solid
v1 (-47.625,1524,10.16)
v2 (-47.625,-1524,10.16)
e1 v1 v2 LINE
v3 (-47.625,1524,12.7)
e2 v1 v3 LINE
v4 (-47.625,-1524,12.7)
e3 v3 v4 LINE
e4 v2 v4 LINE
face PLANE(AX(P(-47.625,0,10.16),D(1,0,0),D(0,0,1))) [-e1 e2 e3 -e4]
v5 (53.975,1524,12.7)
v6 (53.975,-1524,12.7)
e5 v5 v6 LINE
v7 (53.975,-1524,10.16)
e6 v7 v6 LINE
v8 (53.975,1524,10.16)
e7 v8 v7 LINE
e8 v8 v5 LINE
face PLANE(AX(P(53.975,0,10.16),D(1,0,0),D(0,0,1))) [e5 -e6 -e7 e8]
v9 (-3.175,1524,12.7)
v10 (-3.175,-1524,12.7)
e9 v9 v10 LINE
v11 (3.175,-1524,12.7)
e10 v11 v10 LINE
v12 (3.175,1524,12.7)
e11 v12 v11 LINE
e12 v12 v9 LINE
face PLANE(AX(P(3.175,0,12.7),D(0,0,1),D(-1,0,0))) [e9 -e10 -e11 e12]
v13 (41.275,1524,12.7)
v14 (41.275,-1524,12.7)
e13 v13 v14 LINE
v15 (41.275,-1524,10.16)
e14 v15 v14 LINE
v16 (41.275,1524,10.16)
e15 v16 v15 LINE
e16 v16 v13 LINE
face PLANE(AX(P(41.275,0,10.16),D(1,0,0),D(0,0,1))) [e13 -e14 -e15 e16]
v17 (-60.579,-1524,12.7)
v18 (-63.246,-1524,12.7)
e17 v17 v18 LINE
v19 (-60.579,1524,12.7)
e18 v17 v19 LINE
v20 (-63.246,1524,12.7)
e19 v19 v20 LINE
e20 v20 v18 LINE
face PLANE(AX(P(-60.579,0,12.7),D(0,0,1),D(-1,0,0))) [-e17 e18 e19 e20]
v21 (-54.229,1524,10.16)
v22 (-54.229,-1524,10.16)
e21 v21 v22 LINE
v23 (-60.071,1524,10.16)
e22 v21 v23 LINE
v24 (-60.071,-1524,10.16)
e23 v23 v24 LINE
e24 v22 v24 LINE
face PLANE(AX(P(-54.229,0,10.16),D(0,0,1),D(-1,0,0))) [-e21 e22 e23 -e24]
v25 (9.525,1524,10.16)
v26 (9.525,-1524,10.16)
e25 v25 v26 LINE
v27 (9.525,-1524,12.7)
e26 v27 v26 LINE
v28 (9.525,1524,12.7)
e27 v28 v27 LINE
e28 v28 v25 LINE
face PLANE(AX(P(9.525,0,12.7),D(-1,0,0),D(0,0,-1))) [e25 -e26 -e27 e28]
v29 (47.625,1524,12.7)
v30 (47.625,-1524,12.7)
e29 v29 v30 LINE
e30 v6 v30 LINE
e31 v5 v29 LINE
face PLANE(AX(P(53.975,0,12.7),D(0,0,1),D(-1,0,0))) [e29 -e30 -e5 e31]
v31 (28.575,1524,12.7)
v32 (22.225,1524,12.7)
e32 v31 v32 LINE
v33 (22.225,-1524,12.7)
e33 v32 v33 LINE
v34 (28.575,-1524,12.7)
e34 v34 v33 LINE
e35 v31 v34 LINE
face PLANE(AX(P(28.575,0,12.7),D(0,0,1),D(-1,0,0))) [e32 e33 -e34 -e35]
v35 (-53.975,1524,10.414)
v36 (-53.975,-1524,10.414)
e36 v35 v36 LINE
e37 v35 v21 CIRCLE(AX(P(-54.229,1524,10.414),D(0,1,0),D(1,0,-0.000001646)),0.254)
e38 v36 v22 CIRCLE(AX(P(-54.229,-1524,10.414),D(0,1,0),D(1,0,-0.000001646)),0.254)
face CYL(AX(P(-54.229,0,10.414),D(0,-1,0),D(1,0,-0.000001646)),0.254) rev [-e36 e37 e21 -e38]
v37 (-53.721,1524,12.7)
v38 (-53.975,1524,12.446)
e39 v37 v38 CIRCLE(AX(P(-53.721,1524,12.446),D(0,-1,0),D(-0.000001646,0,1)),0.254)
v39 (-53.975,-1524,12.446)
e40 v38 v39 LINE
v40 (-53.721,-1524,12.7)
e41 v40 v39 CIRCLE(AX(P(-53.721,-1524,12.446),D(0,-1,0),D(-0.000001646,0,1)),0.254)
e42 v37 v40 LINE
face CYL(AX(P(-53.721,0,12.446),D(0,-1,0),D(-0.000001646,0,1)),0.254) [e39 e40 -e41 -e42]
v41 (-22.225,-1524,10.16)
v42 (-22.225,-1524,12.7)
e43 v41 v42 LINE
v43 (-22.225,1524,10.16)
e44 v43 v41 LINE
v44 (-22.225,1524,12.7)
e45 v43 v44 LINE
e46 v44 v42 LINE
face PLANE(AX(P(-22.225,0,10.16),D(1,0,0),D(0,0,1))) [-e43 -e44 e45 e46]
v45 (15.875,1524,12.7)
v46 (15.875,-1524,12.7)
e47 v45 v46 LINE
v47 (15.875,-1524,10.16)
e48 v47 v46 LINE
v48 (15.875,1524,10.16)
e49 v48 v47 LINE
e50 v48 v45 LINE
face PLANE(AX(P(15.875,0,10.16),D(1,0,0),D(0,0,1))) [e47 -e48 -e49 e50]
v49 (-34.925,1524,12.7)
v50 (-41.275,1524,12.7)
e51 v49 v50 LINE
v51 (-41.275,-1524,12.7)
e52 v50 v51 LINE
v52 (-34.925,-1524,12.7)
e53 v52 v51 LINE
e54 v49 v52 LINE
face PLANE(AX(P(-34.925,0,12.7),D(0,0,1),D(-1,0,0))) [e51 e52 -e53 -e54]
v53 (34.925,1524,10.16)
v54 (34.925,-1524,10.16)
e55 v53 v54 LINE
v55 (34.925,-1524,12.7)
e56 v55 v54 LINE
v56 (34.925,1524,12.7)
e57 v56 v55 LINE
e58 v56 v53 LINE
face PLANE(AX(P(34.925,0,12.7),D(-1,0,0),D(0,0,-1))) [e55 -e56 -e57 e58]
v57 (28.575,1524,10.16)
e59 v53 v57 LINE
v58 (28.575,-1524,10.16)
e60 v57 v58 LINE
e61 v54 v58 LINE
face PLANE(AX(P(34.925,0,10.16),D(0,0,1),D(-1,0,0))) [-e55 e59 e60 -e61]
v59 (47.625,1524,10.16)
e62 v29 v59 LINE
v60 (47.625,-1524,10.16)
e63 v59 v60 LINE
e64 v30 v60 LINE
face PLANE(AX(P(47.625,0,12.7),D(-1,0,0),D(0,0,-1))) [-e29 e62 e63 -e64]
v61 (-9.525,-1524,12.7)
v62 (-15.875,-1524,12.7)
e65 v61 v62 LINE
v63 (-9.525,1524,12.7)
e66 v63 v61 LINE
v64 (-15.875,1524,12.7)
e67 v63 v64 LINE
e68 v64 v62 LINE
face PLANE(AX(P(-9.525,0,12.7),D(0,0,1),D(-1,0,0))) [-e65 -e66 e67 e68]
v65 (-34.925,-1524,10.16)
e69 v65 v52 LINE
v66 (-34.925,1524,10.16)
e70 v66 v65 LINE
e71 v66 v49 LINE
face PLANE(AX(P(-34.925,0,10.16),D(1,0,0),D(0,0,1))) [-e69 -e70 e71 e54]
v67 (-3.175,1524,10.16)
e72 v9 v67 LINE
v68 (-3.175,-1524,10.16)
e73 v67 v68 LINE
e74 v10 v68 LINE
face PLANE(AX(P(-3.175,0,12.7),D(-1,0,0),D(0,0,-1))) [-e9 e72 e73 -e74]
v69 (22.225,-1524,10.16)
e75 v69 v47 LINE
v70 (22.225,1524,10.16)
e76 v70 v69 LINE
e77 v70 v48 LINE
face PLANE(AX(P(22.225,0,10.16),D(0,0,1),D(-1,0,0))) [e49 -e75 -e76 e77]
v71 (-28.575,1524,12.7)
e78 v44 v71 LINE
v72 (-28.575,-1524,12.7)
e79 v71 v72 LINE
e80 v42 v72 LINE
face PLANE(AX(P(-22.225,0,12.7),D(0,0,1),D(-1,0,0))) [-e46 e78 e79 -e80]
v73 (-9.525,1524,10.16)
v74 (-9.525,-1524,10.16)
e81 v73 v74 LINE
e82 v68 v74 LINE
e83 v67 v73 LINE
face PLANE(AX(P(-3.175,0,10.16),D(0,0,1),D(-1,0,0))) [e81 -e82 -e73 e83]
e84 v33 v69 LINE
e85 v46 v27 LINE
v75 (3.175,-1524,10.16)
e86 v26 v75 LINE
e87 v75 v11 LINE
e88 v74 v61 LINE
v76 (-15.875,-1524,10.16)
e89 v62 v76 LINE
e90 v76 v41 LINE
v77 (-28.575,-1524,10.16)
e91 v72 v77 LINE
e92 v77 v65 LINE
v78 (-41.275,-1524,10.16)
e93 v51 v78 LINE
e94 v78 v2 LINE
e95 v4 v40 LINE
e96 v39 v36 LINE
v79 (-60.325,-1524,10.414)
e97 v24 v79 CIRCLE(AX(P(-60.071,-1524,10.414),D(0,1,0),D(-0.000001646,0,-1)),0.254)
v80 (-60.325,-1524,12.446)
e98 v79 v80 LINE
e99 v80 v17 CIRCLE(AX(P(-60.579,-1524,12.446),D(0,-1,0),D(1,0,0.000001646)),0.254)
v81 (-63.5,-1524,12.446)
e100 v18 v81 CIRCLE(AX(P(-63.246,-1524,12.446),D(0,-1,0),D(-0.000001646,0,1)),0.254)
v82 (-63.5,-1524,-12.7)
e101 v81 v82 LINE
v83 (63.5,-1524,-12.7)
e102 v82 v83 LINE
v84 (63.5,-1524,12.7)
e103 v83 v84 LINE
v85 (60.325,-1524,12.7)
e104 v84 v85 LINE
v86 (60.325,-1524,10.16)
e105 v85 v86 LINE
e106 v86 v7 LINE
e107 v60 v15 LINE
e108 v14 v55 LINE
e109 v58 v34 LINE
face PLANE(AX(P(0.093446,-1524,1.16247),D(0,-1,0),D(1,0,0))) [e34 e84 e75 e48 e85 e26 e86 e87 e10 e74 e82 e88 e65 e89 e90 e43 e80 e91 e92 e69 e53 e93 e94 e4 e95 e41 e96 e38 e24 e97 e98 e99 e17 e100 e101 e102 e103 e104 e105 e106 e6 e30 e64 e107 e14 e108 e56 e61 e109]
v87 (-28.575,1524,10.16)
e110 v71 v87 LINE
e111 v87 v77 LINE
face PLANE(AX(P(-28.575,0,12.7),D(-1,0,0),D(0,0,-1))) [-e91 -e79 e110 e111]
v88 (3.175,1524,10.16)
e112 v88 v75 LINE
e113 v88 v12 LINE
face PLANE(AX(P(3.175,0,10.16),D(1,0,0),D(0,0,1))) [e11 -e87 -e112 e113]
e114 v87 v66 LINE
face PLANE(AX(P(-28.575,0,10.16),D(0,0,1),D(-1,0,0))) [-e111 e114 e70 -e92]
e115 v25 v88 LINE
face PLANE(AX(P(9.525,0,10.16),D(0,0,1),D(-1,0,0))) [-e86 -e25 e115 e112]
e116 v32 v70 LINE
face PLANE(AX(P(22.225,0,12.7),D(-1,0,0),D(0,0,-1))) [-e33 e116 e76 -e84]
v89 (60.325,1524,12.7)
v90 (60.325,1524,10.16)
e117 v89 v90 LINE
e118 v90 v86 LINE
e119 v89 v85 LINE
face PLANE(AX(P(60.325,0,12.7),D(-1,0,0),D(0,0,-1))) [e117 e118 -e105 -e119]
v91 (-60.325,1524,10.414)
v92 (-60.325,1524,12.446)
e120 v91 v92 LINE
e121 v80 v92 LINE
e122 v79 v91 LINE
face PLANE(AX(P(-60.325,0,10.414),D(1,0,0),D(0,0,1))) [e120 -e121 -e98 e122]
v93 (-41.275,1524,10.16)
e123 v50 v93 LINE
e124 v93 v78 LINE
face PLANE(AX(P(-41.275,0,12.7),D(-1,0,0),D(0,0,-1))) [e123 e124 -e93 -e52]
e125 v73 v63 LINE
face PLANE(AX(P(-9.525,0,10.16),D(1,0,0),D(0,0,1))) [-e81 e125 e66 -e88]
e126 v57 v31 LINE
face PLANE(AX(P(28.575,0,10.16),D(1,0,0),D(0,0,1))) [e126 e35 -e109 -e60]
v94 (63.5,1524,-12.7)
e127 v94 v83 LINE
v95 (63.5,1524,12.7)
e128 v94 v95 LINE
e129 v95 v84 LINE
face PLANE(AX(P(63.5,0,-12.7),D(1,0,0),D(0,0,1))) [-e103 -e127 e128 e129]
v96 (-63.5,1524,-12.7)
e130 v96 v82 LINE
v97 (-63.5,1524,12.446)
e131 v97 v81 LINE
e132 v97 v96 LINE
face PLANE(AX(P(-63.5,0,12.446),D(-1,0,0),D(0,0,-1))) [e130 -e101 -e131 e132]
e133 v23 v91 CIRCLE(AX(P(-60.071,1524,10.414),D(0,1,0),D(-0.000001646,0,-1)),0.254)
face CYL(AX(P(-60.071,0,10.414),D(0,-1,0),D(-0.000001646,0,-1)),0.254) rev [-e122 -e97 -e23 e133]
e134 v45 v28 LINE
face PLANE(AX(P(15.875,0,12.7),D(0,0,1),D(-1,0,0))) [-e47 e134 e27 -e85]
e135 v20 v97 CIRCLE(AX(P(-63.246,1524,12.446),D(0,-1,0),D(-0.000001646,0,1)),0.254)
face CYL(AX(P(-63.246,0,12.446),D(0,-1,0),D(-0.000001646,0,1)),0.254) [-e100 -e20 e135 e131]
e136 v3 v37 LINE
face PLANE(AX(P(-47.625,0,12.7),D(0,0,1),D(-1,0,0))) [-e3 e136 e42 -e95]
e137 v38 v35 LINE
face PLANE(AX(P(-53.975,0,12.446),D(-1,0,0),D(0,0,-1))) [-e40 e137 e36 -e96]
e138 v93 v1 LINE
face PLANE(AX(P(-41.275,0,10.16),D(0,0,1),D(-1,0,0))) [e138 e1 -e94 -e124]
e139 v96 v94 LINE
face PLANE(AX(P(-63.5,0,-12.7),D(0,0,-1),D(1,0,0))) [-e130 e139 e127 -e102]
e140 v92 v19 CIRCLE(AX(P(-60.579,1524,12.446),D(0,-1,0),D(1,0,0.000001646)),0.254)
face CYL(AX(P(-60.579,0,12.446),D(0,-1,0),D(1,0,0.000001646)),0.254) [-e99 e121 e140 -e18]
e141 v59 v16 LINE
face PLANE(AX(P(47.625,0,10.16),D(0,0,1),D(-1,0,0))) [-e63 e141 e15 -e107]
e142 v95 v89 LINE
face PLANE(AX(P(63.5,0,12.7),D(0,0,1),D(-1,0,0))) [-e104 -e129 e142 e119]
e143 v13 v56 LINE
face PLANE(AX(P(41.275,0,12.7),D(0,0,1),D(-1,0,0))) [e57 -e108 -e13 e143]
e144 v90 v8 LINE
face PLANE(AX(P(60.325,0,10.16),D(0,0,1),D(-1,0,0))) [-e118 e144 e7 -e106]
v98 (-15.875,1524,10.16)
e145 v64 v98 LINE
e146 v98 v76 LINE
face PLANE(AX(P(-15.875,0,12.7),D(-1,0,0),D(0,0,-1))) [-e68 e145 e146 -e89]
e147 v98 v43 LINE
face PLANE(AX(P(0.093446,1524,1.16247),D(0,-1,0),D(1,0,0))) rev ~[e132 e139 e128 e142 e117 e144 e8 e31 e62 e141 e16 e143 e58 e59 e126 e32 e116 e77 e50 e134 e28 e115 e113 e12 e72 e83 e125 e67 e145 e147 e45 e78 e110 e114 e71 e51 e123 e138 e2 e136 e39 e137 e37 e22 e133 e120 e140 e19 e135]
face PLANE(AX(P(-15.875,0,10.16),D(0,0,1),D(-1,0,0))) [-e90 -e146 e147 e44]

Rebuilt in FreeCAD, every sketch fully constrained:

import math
import FreeCAD as App
import Part
import Sketcher

V = App.Vector
Q = App.Units.Quantity

doc = App.newDocument("Part")
body = doc.addObject("PartDesign::Body", "Body")

sketch1 = doc.addObject("Sketcher::SketchObject", "Sketch")
body.addObject(sketch1)
sketch1.AttachmentSupport = (doc.XZ_Plane, [""])
sketch1.MapMode = "FlatFace"
sketch1.addGeometry([
    Part.LineSegment(V(-60.58, 12.7, 0), V(-63.25, 12.7, 0)),
    Part.ArcOfCircle(Part.Circle(V(-63.25, 12.45, 0), V(0, 0, 1), 0.25), math.radians(90), math.radians(180)),
    Part.LineSegment(V(-63.5, 12.45, 0), V(-63.5, -12.7, 0)),
    Part.LineSegment(V(-63.5, -12.7, 0), V(63.5, -12.7, 0)),
    Part.LineSegment(V(63.5, -12.7, 0), V(63.5, 12.7, 0)),
    Part.LineSegment(V(63.5, 12.7, 0), V(60.33, 12.7, 0)),
    Part.LineSegment(V(60.33, 12.7, 0), V(60.33, 10.16, 0)),
    Part.LineSegment(V(60.33, 10.16, 0), V(53.98, 10.16, 0)),
    Part.LineSegment(V(53.98, 10.16, 0), V(53.98, 12.7, 0)),
    Part.LineSegment(V(53.98, 12.7, 0), V(47.62, 12.7, 0)),
    Part.LineSegment(V(47.62, 12.7, 0), V(47.62, 10.16, 0)),
    Part.LineSegment(V(47.62, 10.16, 0), V(41.27, 10.16, 0)),
    Part.LineSegment(V(41.27, 10.16, 0), V(41.27, 12.7, 0)),
    Part.LineSegment(V(41.27, 12.7, 0), V(34.92, 12.7, 0)),
    Part.LineSegment(V(34.92, 12.7, 0), V(34.92, 10.16, 0)),
    Part.LineSegment(V(34.92, 10.16, 0), V(28.57, 10.16, 0)),
    Part.LineSegment(V(28.57, 10.16, 0), V(28.57, 12.7, 0)),
    Part.LineSegment(V(28.57, 12.7, 0), V(22.23, 12.7, 0)),
    Part.LineSegment(V(22.23, 12.7, 0), V(22.23, 10.16, 0)),
    Part.LineSegment(V(22.23, 10.16, 0), V(15.88, 10.16, 0)),
    Part.LineSegment(V(15.88, 10.16, 0), V(15.88, 12.7, 0)),
    Part.LineSegment(V(15.88, 12.7, 0), V(9.53, 12.7, 0)),
    Part.LineSegment(V(9.53, 12.7, 0), V(9.53, 10.16, 0)),
    Part.LineSegment(V(9.53, 10.16, 0), V(3.17, 10.16, 0)),
    Part.LineSegment(V(3.17, 10.16, 0), V(3.17, 12.7, 0)),
    Part.LineSegment(V(3.17, 12.7, 0), V(-3.17, 12.7, 0)),
    Part.LineSegment(V(-3.17, 12.7, 0), V(-3.17, 10.16, 0)),
    Part.LineSegment(V(-3.17, 10.16, 0), V(-9.53, 10.16, 0)),
    Part.LineSegment(V(-9.53, 10.16, 0), V(-9.53, 12.7, 0)),
    Part.LineSegment(V(-9.53, 12.7, 0), V(-15.88, 12.7, 0)),
    Part.LineSegment(V(-15.88, 12.7, 0), V(-15.88, 10.16, 0)),
    Part.LineSegment(V(-15.88, 10.16, 0), V(-22.23, 10.16, 0)),
    Part.LineSegment(V(-22.23, 10.16, 0), V(-22.23, 12.7, 0)),
    Part.LineSegment(V(-22.23, 12.7, 0), V(-28.57, 12.7, 0)),
    Part.LineSegment(V(-28.57, 12.7, 0), V(-28.57, 10.16, 0)),
    Part.LineSegment(V(-28.57, 10.16, 0), V(-34.92, 10.16, 0)),
    Part.LineSegment(V(-34.92, 10.16, 0), V(-34.92, 12.7, 0)),
    Part.LineSegment(V(-34.92, 12.7, 0), V(-41.27, 12.7, 0)),
    Part.LineSegment(V(-41.27, 12.7, 0), V(-41.27, 10.16, 0)),
    Part.LineSegment(V(-41.27, 10.16, 0), V(-47.62, 10.16, 0)),
    Part.LineSegment(V(-47.62, 10.16, 0), V(-47.62, 12.7, 0)),
    Part.LineSegment(V(-47.62, 12.7, 0), V(-53.72, 12.7, 0)),
    Part.ArcOfCircle(Part.Circle(V(-53.72, 12.45, 0), V(0, 0, 1), 0.25), math.radians(90), math.radians(180)),
    Part.LineSegment(V(-53.98, 12.45, 0), V(-53.98, 10.41, 0)),
    Part.ArcOfCircle(Part.Circle(V(-54.23, 10.41, 0), V(0, 0, 1), 0.25), math.radians(-90), math.radians(0)),
    Part.LineSegment(V(-54.23, 10.16, 0), V(-60.07, 10.16, 0)),
    Part.ArcOfCircle(Part.Circle(V(-60.07, 10.41, 0), V(0, 0, 1), 0.25), math.radians(-180), math.radians(-90)),
    Part.LineSegment(V(-60.33, 10.41, 0), V(-60.33, 12.45, 0)),
    Part.ArcOfCircle(Part.Circle(V(-60.58, 12.45, 0), V(0, 0, 1), 0.25), math.radians(0), math.radians(90)),
], False)
sketch1.addConstraint([
    Sketcher.Constraint("Tangent", 0, 2, 1, 1),
    Sketcher.Constraint("Tangent", 1, 2, 2, 1),
    Sketcher.Constraint("Coincident", 2, 2, 3, 1),
    Sketcher.Constraint("Coincident", 3, 2, 4, 1),
    Sketcher.Constraint("Coincident", 4, 2, 5, 1),
    Sketcher.Constraint("Coincident", 5, 2, 6, 1),
    Sketcher.Constraint("Coincident", 6, 2, 7, 1),
    Sketcher.Constraint("Coincident", 7, 2, 8, 1),
    Sketcher.Constraint("Coincident", 8, 2, 9, 1),
    Sketcher.Constraint("Coincident", 9, 2, 10, 1),
    Sketcher.Constraint("Coincident", 10, 2, 11, 1),
    Sketcher.Constraint("Coincident", 11, 2, 12, 1),
    Sketcher.Constraint("Coincident", 12, 2, 13, 1),
    Sketcher.Constraint("Coincident", 13, 2, 14, 1),
    Sketcher.Constraint("Coincident", 14, 2, 15, 1),
    Sketcher.Constraint("Coincident", 15, 2, 16, 1),
    Sketcher.Constraint("Coincident", 16, 2, 17, 1),
    Sketcher.Constraint("Coincident", 17, 2, 18, 1),
    Sketcher.Constraint("Coincident", 18, 2, 19, 1),
    Sketcher.Constraint("Coincident", 19, 2, 20, 1),
    Sketcher.Constraint("Coincident", 20, 2, 21, 1),
    Sketcher.Constraint("Coincident", 21, 2, 22, 1),
    Sketcher.Constraint("Coincident", 22, 2, 23, 1),
    Sketcher.Constraint("Coincident", 23, 2, 24, 1),
    Sketcher.Constraint("Coincident", 24, 2, 25, 1),
    Sketcher.Constraint("Coincident", 25, 2, 26, 1),
    Sketcher.Constraint("Coincident", 26, 2, 27, 1),
    Sketcher.Constraint("Coincident", 27, 2, 28, 1),
    Sketcher.Constraint("Coincident", 28, 2, 29, 1),
    Sketcher.Constraint("Coincident", 29, 2, 30, 1),
    Sketcher.Constraint("Coincident", 30, 2, 31, 1),
    Sketcher.Constraint("Coincident", 31, 2, 32, 1),
    Sketcher.Constraint("Coincident", 32, 2, 33, 1),
    Sketcher.Constraint("Coincident", 33, 2, 34, 1),
    Sketcher.Constraint("Coincident", 34, 2, 35, 1),
    Sketcher.Constraint("Coincident", 35, 2, 36, 1),
    Sketcher.Constraint("Coincident", 36, 2, 37, 1),
    Sketcher.Constraint("Coincident", 37, 2, 38, 1),
    Sketcher.Constraint("Coincident", 38, 2, 39, 1),
    Sketcher.Constraint("Coincident", 39, 2, 40, 1),
    Sketcher.Constraint("Coincident", 40, 2, 41, 1),
    Sketcher.Constraint("Tangent", 41, 2, 42, 1),
    Sketcher.Constraint("Tangent", 42, 2, 43, 1),
    Sketcher.Constraint("Tangent", 43, 2, 44, 2),
    Sketcher.Constraint("Tangent", 44, 1, 45, 1),
    Sketcher.Constraint("Tangent", 45, 2, 46, 2),
    Sketcher.Constraint("Tangent", 46, 1, 47, 1),
    Sketcher.Constraint("Tangent", 47, 2, 48, 1),
    Sketcher.Constraint("Tangent", 48, 2, 0, 1),
    Sketcher.Constraint("Horizontal", 0),
    Sketcher.Constraint("Vertical", 2),
    Sketcher.Constraint("Horizontal", 3),
    Sketcher.Constraint("Vertical", 4),
    Sketcher.Constraint("Horizontal", 5),
    Sketcher.Constraint("Vertical", 6),
    Sketcher.Constraint("Horizontal", 7),
    Sketcher.Constraint("Vertical", 8),
    Sketcher.Constraint("Horizontal", 9),
    Sketcher.Constraint("Vertical", 10),
    Sketcher.Constraint("Horizontal", 11),
    Sketcher.Constraint("Vertical", 12),
    Sketcher.Constraint("Horizontal", 13),
    Sketcher.Constraint("Vertical", 14),
    Sketcher.Constraint("Horizontal", 15),
    Sketcher.Constraint("Vertical", 16),
    Sketcher.Constraint("Horizontal", 17),
    Sketcher.Constraint("Vertical", 18),
    Sketcher.Constraint("Horizontal", 19),
    Sketcher.Constraint("Vertical", 20),
    Sketcher.Constraint("Horizontal", 21),
    Sketcher.Constraint("Vertical", 22),
    Sketcher.Constraint("Horizontal", 23),
    Sketcher.Constraint("Vertical", 24),
    Sketcher.Constraint("Horizontal", 25),
    Sketcher.Constraint("Vertical", 26),
    Sketcher.Constraint("Horizontal", 27),
    Sketcher.Constraint("Vertical", 28),
    Sketcher.Constraint("Horizontal", 29),
    Sketcher.Constraint("Vertical", 30),
    Sketcher.Constraint("Horizontal", 31),
    Sketcher.Constraint("Vertical", 32),
    Sketcher.Constraint("Horizontal", 33),
    Sketcher.Constraint("Vertical", 34),
    Sketcher.Constraint("Horizontal", 35),
    Sketcher.Constraint("Vertical", 36),
    Sketcher.Constraint("Horizontal", 37),
    Sketcher.Constraint("Vertical", 38),
    Sketcher.Constraint("Horizontal", 39),
    Sketcher.Constraint("Vertical", 40),
    Sketcher.Constraint("Horizontal", 41),
    Sketcher.Constraint("Vertical", 43),
    Sketcher.Constraint("Horizontal", 45),
    Sketcher.Constraint("Vertical", 47),
    Sketcher.Constraint("Equal", 1, 42),
    Sketcher.Constraint("Equal", 42, 44),
    Sketcher.Constraint("Equal", 44, 46),
    Sketcher.Constraint("Equal", 46, 48),
    Sketcher.Constraint("Symmetric", 2, 2, 4, 2, -1, 1),
    Sketcher.Constraint("Symmetric", 23, 2, 26, 2, -2),
    Sketcher.Constraint("Symmetric", 21, 2, 28, 2, -2),
    Sketcher.Constraint("Symmetric", 19, 2, 30, 2, -2),
    Sketcher.Constraint("Symmetric", 17, 2, 32, 2, -2),
    Sketcher.Constraint("Symmetric", 15, 2, 34, 2, -2),
    Sketcher.Constraint("Symmetric", 13, 2, 36, 2, -2),
    Sketcher.Constraint("Symmetric", 11, 2, 38, 2, -2),
    Sketcher.Constraint("Symmetric", 9, 2, 40, 2, -2),
    Sketcher.Constraint("Horizontal", 1, 3, 42, 3),
    Sketcher.Constraint("Horizontal", 0, 2, 4, 2),
    Sketcher.Constraint("Horizontal", 7, 2, 10, 2),
    Sketcher.Constraint("Horizontal", 9, 2, 12, 2),
    Sketcher.Constraint("Horizontal", 11, 2, 14, 2),
    Sketcher.Constraint("Horizontal", 13, 2, 16, 2),
    Sketcher.Constraint("Horizontal", 15, 2, 18, 2),
    Sketcher.Constraint("Horizontal", 17, 2, 20, 2),
    Sketcher.Constraint("Horizontal", 19, 2, 22, 2),
    Sketcher.Constraint("Horizontal", 21, 2, 24, 2),
    Sketcher.Constraint("Horizontal", 39, 2, 44, 1),
    Sketcher.Constraint("Equal", 7, 9),
    Sketcher.Constraint("Equal", 9, 11),
    Sketcher.Constraint("Equal", 11, 13),
    Sketcher.Constraint("Equal", 13, 15),
    Sketcher.Constraint("Equal", 15, 17),
    Sketcher.Constraint("Equal", 17, 19),
    Sketcher.Constraint("Equal", 19, 21),
    Sketcher.Constraint("Equal", 21, 23),
    Sketcher.Constraint("Equal", 23, 25),
    Sketcher.Constraint("DistanceX", 3, 1, 3, 2, Q("5 in")),
    Sketcher.Constraint("DistanceY", 4, 1, 4, 2, Q("1 in")),
    Sketcher.Constraint("Radius", 1, Q("0.01 in")),
    Sketcher.Constraint("DistanceY", 6, 2, 6, 1, Q("0.1 in")),
    Sketcher.Constraint("DistanceX", 7, 2, 7, 1, Q("0.25 in")),
    Sketcher.Constraint("DistanceX", 41, 2, 41, 1, Q("0.24 in")),
    Sketcher.Constraint("DistanceX", 45, 2, 45, 1, Q("0.23 in")),
])
pad1 = doc.addObject("PartDesign::Pad", "Pad")
body.addObject(pad1)
pad1.Profile = sketch1
pad1.Length = Q("120 in")
pad1.Midplane = True

doc.recompute()
